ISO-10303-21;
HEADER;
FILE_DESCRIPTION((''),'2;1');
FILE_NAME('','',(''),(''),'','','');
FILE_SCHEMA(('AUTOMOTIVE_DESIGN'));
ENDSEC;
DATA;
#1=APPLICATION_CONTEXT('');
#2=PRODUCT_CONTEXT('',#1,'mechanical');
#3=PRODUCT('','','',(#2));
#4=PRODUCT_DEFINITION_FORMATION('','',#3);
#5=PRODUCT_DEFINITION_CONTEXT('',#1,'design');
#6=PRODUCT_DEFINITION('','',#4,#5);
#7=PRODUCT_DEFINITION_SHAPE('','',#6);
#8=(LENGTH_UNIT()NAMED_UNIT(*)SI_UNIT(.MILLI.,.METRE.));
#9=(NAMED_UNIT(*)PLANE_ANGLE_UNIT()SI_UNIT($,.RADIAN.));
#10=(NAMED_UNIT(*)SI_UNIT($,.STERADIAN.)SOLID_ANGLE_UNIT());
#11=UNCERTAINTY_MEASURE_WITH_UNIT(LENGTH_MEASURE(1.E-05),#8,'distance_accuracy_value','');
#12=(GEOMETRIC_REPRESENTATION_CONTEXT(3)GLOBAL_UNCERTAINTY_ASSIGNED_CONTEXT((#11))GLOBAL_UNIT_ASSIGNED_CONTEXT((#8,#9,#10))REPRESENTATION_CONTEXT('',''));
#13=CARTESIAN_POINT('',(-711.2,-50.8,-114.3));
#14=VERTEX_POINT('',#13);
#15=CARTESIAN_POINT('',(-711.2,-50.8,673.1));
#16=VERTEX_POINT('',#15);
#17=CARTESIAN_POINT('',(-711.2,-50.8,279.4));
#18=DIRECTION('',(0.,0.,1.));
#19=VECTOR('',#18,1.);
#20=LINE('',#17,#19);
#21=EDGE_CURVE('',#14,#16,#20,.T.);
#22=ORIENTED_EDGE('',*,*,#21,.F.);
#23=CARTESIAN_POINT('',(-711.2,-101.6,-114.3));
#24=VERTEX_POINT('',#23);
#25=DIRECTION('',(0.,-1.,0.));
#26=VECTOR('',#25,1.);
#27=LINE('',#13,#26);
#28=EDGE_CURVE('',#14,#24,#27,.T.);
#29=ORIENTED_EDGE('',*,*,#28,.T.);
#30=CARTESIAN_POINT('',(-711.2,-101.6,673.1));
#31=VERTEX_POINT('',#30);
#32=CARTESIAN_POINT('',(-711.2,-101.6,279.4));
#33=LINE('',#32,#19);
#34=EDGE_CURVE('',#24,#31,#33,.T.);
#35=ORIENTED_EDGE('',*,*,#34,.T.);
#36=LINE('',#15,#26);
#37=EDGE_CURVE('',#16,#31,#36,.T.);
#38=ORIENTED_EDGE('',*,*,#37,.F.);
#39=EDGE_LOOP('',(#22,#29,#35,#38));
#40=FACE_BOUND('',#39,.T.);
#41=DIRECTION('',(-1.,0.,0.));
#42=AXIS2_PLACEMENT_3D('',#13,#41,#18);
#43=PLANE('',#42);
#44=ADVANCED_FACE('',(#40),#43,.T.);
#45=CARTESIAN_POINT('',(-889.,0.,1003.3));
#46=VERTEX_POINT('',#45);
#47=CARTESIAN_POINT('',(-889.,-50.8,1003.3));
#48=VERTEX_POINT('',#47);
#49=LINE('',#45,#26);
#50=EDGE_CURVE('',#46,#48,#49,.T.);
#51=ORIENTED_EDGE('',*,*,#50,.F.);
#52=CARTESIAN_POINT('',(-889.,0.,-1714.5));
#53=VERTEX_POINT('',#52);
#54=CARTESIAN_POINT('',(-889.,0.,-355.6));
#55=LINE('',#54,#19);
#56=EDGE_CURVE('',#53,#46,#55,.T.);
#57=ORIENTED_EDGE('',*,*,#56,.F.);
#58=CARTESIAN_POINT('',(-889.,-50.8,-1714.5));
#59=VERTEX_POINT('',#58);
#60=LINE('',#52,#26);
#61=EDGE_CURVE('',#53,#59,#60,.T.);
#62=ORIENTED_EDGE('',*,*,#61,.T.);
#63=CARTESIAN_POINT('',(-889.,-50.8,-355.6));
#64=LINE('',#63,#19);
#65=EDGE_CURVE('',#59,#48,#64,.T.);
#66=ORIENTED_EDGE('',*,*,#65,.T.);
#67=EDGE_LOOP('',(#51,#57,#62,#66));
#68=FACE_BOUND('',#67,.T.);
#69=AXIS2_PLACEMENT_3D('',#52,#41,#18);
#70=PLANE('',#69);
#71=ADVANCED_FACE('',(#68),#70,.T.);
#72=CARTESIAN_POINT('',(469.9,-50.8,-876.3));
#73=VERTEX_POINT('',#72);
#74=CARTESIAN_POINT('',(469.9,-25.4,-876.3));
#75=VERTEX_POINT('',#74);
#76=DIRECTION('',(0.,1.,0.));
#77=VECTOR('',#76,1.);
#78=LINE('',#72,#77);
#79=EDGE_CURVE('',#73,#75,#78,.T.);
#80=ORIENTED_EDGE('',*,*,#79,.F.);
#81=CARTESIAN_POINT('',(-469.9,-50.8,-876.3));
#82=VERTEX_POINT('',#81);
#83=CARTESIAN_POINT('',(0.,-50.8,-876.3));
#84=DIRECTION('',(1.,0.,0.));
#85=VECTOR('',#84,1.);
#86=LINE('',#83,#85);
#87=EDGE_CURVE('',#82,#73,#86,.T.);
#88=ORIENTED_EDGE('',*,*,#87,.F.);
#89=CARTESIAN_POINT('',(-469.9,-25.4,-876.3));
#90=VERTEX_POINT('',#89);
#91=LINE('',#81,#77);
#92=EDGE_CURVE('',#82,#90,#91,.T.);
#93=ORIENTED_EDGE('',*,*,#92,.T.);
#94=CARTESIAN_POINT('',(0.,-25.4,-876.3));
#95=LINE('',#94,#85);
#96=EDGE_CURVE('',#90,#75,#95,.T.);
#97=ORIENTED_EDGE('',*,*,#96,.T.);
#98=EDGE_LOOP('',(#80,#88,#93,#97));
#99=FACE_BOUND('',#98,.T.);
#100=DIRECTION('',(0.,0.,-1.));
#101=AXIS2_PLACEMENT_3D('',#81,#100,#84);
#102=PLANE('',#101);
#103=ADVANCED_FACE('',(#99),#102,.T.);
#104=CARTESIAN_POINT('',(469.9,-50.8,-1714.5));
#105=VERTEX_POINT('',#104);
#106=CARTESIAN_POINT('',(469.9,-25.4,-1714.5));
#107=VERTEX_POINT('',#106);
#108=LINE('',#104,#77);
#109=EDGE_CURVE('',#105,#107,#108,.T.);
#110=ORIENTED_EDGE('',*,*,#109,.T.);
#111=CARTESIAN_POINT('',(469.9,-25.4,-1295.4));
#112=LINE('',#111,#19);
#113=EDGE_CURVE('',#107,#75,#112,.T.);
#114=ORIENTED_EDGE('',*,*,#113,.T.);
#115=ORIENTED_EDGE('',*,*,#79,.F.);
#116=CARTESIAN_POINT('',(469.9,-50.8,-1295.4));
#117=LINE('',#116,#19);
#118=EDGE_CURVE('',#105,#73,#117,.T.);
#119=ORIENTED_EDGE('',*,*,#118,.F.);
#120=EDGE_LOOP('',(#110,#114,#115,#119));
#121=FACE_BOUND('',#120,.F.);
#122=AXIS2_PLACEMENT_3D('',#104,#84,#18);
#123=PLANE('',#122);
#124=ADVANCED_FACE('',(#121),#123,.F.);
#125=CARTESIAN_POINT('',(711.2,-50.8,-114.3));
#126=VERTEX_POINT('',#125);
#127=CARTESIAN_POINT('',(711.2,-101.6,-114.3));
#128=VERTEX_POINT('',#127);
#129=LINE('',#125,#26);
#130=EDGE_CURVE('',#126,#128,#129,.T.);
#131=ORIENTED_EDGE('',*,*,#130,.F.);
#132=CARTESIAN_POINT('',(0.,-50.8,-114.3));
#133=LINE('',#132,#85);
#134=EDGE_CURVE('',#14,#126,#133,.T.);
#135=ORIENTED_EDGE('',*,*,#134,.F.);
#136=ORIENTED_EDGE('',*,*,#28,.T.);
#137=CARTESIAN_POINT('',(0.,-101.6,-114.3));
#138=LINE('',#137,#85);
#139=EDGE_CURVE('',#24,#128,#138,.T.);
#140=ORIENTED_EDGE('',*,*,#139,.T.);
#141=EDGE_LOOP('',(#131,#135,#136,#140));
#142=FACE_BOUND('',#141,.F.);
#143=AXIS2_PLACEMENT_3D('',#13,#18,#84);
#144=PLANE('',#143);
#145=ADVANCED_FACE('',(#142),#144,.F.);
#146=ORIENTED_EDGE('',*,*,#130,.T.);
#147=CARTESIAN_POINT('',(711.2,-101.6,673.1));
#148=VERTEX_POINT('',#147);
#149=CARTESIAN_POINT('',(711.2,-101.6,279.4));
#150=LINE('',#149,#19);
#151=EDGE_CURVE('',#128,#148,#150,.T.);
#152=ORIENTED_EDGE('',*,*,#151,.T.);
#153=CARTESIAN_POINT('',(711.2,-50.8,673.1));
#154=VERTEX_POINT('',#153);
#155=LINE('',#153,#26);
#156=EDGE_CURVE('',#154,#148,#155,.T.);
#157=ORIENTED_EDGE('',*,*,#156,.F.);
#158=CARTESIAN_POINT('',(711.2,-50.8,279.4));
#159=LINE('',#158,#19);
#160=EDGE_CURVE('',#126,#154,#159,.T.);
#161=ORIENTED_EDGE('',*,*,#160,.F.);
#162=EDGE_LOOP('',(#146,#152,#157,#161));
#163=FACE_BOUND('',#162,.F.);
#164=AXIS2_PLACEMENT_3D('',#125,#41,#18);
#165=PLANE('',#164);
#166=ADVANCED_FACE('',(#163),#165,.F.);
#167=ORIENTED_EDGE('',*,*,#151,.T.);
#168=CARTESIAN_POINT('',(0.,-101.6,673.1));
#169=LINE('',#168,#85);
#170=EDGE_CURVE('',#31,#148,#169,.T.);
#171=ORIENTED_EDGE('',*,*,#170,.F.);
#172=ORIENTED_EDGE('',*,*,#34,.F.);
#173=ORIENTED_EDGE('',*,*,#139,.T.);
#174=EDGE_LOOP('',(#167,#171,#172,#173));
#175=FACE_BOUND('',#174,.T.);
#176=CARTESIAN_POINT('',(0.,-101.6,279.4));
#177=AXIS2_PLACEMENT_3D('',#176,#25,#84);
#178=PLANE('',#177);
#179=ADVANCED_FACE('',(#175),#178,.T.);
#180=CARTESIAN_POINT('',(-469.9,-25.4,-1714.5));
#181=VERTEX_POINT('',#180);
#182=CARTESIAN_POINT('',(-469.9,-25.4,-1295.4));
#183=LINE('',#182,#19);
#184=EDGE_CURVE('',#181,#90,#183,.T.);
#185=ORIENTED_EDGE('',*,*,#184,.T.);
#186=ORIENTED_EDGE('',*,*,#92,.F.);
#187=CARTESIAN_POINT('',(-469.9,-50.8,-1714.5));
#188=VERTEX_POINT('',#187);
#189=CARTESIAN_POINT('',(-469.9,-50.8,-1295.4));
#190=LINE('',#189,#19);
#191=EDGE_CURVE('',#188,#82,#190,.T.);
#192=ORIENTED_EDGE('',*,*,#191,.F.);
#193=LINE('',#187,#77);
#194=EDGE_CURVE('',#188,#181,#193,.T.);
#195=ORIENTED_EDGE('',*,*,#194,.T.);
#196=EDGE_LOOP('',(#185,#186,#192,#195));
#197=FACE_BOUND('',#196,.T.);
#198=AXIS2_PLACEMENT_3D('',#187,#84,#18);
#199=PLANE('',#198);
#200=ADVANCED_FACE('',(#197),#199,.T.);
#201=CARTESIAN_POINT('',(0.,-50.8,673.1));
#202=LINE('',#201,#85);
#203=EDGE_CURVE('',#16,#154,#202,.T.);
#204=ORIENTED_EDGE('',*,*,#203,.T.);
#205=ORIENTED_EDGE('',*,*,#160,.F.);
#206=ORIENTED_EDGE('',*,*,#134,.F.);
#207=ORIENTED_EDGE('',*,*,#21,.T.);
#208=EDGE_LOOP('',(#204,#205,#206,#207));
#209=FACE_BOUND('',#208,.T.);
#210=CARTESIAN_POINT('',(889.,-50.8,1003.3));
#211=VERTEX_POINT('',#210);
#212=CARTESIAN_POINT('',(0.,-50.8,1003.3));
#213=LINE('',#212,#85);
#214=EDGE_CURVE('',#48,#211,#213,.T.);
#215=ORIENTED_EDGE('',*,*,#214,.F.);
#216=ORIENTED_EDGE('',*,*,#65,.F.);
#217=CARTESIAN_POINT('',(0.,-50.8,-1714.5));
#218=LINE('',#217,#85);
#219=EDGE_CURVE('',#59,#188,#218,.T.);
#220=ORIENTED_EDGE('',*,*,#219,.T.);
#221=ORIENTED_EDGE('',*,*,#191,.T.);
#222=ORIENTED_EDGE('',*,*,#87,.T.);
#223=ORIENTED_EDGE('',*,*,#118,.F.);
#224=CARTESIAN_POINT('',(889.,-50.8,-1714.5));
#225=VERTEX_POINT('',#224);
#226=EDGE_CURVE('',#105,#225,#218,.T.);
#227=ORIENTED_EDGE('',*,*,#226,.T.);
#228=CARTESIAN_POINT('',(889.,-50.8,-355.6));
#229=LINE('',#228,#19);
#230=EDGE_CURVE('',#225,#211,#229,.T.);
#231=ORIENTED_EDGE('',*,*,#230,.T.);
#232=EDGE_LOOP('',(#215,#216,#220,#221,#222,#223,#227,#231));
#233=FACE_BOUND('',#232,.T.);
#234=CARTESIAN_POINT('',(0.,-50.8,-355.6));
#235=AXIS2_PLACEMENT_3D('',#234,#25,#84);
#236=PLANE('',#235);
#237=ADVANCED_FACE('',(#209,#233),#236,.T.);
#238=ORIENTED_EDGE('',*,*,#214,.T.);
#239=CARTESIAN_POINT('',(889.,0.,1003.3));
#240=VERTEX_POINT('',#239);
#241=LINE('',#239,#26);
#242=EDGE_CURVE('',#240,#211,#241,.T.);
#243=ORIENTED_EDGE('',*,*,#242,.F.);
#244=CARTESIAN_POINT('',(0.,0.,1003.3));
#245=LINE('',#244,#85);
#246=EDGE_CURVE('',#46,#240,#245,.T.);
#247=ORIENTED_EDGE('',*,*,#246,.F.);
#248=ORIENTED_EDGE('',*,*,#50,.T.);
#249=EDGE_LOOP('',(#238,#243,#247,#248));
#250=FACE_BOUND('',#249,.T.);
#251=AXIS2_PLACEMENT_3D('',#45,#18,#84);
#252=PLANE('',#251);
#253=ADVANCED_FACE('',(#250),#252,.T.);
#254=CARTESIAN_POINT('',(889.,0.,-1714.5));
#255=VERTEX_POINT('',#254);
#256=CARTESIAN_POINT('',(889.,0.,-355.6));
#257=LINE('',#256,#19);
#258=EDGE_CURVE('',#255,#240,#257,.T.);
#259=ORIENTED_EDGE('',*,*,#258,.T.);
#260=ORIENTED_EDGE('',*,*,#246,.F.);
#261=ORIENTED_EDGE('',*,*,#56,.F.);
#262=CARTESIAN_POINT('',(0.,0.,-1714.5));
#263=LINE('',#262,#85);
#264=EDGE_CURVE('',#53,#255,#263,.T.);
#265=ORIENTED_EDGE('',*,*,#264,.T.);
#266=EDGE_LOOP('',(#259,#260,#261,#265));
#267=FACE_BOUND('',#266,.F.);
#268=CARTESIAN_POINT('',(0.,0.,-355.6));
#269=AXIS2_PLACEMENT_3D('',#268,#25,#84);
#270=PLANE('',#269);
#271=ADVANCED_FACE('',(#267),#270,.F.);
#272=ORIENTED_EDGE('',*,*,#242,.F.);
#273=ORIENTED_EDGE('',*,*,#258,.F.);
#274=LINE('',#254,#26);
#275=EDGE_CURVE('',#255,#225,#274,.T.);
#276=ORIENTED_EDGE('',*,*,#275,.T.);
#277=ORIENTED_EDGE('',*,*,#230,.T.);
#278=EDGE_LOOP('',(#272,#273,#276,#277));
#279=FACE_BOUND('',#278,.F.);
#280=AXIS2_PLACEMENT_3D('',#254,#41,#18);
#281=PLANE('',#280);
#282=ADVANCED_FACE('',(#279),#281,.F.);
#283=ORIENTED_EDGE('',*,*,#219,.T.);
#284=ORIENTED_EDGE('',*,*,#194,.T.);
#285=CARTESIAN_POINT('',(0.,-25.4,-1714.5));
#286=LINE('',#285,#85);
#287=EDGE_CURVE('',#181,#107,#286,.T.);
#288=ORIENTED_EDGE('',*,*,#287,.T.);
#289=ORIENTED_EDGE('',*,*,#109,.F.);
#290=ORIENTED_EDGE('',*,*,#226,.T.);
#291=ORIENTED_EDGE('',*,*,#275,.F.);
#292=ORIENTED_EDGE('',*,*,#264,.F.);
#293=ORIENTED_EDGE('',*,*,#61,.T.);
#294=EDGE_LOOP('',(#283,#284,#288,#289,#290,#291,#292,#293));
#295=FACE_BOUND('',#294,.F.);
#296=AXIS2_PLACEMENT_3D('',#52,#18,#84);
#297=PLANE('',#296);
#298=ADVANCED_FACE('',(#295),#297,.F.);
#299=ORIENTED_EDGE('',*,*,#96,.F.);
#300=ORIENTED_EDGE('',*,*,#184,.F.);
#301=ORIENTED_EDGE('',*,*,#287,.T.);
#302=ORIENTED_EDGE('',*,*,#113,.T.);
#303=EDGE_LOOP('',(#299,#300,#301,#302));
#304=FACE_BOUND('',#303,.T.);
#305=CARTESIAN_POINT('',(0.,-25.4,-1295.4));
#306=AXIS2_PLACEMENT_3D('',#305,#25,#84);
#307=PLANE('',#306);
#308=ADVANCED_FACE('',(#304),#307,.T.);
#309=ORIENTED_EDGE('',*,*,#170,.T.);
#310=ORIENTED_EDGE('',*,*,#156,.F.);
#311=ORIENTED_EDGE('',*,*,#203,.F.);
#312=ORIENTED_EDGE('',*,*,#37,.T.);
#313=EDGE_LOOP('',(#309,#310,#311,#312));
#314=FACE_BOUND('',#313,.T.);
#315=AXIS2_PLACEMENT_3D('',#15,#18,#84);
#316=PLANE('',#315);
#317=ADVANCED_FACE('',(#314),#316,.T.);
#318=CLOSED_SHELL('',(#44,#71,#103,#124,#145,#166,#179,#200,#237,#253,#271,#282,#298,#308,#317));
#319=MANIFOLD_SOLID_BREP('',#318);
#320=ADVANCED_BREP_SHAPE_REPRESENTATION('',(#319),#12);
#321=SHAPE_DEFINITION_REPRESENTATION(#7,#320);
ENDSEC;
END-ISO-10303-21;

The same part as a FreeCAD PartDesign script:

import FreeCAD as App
import Part
import Sketcher

V = App.Vector
Q = App.Units.Quantity

doc = App.newDocument("Part")
body = doc.addObject("PartDesign::Body", "Body")

# Sketch on XZ plane
sketch1 = body.newObject("Sketcher::SketchObject", "Sketch")
sketch1.AttachmentSupport = (doc.getObject("XZ_Plane"), [""])
sketch1.MapMode = "FlatFace"
sketch1.addGeometry([
    Part.LineSegment(V(-889, 1003.3, 0), V(-889, -1714.5, 0)),
    Part.LineSegment(V(-889, -1714.5, 0), V(889, -1714.5, 0)),
    Part.LineSegment(V(889, -1714.5, 0), V(889, 1003.3, 0)),
    Part.LineSegment(V(889, 1003.3, 0), V(-889, 1003.3, 0)),
], False)
sketch1.addConstraint([
    Sketcher.Constraint("Coincident", 0, 2, 1, 1),
    Sketcher.Constraint("Coincident", 1, 2, 2, 1),
    Sketcher.Constraint("Coincident", 2, 2, 3, 1),
    Sketcher.Constraint("Coincident", 3, 2, 0, 1),
    Sketcher.Constraint("Vertical", 0),
    Sketcher.Constraint("Horizontal", 1),
    Sketcher.Constraint("Vertical", 2),
    Sketcher.Constraint("Horizontal", 3),
    Sketcher.Constraint("DistanceX", 1, 1, 1, 2, Q("70 in")),
    Sketcher.Constraint("DistanceY", 0, 2, 0, 1, Q("107 in")),
    Sketcher.Constraint("DistanceX", 0, 2, -1, 1, Q("35 in")),
    Sketcher.Constraint("DistanceY", 0, 2, -1, 1, Q("67.5 in")),
])
pad1 = body.newObject("PartDesign::Pad", "Pad")
pad1.Profile = sketch1
pad1.Length = Q("2 in")

# Sketch on XZ plane
sketch2 = body.newObject("Sketcher::SketchObject", "Sketch001")
sketch2.AttachmentSupport = (doc.getObject("XZ_Plane"), [""])
sketch2.MapMode = "FlatFace"
sketch2.AttachmentOffset = App.Placement(V(0, 0, 2 * 25.4), App.Rotation())
sketch2.addGeometry([
    Part.LineSegment(V(-469.9, -876.3, 0), V(-469.9, -1714.5, 0)),
    Part.LineSegment(V(-469.9, -1714.5, 0), V(469.9, -1714.5, 0)),
    Part.LineSegment(V(469.9, -1714.5, 0), V(469.9, -876.3, 0)),
    Part.LineSegment(V(469.9, -876.3, 0), V(-469.9, -876.3, 0)),
], False)
sketch2.addConstraint([
    Sketcher.Constraint("Coincident", 0, 2, 1, 1),
    Sketcher.Constraint("Coincident", 1, 2, 2, 1),
    Sketcher.Constraint("Coincident", 2, 2, 3, 1),
    Sketcher.Constraint("Coincident", 3, 2, 0, 1),
    Sketcher.Constraint("Vertical", 0),
    Sketcher.Constraint("Horizontal", 1),
    Sketcher.Constraint("Vertical", 2),
    Sketcher.Constraint("Horizontal", 3),
    Sketcher.Constraint("DistanceX", 1, 1, 1, 2, Q("37 in")),
    Sketcher.Constraint("DistanceY", 0, 2, 0, 1, Q("33 in")),
    Sketcher.Constraint("DistanceX", 0, 2, -1, 1, Q("18.5 in")),
    Sketcher.Constraint("DistanceY", 0, 2, -1, 1, Q("67.5 in")),
])
pocket1 = body.newObject("PartDesign::Pocket", "Pocket")
pocket1.Profile = sketch2
pocket1.Length = Q("1 in")

# Sketch on XZ plane
sketch3 = body.newObject("Sketcher::SketchObject", "Sketch002")
sketch3.AttachmentSupport = (doc.getObject("XZ_Plane"), [""])
sketch3.MapMode = "FlatFace"
sketch3.AttachmentOffset = App.Placement(V(0, 0, 2 * 25.4), App.Rotation())
sketch3.addGeometry([
    Part.LineSegment(V(-711.2, 673.1, 0), V(-711.2, -114.3, 0)),
    Part.LineSegment(V(-711.2, -114.3, 0), V(711.2, -114.3, 0)),
    Part.LineSegment(V(711.2, -114.3, 0), V(711.2, 673.1, 0)),
    Part.LineSegment(V(711.2, 673.1, 0), V(-711.2, 673.1, 0)),
], False)
sketch3.addConstraint([
    Sketcher.Constraint("Coincident", 0, 2, 1, 1),
    Sketcher.Constraint("Coincident", 1, 2, 2, 1),
    Sketcher.Constraint("Coincident", 2, 2, 3, 1),
    Sketcher.Constraint("Coincident", 3, 2, 0, 1),
    Sketcher.Constraint("Vertical", 0),
    Sketcher.Constraint("Horizontal", 1),
    Sketcher.Constraint("Vertical", 2),
    Sketcher.Constraint("Horizontal", 3),
    Sketcher.Constraint("DistanceX", 1, 1, 1, 2, Q("56 in")),
    Sketcher.Constraint("DistanceY", 0, 2, 0, 1, Q("31 in")),
    Sketcher.Constraint("DistanceX", 0, 2, -1, 1, Q("28 in")),
    Sketcher.Constraint("DistanceY", 0, 2, -1, 1, Q("4.5 in")),
])
pad2 = body.newObject("PartDesign::Pad", "Pad001")
pad2.Profile = sketch3
pad2.Length = Q("2 in")

doc.recompute()
